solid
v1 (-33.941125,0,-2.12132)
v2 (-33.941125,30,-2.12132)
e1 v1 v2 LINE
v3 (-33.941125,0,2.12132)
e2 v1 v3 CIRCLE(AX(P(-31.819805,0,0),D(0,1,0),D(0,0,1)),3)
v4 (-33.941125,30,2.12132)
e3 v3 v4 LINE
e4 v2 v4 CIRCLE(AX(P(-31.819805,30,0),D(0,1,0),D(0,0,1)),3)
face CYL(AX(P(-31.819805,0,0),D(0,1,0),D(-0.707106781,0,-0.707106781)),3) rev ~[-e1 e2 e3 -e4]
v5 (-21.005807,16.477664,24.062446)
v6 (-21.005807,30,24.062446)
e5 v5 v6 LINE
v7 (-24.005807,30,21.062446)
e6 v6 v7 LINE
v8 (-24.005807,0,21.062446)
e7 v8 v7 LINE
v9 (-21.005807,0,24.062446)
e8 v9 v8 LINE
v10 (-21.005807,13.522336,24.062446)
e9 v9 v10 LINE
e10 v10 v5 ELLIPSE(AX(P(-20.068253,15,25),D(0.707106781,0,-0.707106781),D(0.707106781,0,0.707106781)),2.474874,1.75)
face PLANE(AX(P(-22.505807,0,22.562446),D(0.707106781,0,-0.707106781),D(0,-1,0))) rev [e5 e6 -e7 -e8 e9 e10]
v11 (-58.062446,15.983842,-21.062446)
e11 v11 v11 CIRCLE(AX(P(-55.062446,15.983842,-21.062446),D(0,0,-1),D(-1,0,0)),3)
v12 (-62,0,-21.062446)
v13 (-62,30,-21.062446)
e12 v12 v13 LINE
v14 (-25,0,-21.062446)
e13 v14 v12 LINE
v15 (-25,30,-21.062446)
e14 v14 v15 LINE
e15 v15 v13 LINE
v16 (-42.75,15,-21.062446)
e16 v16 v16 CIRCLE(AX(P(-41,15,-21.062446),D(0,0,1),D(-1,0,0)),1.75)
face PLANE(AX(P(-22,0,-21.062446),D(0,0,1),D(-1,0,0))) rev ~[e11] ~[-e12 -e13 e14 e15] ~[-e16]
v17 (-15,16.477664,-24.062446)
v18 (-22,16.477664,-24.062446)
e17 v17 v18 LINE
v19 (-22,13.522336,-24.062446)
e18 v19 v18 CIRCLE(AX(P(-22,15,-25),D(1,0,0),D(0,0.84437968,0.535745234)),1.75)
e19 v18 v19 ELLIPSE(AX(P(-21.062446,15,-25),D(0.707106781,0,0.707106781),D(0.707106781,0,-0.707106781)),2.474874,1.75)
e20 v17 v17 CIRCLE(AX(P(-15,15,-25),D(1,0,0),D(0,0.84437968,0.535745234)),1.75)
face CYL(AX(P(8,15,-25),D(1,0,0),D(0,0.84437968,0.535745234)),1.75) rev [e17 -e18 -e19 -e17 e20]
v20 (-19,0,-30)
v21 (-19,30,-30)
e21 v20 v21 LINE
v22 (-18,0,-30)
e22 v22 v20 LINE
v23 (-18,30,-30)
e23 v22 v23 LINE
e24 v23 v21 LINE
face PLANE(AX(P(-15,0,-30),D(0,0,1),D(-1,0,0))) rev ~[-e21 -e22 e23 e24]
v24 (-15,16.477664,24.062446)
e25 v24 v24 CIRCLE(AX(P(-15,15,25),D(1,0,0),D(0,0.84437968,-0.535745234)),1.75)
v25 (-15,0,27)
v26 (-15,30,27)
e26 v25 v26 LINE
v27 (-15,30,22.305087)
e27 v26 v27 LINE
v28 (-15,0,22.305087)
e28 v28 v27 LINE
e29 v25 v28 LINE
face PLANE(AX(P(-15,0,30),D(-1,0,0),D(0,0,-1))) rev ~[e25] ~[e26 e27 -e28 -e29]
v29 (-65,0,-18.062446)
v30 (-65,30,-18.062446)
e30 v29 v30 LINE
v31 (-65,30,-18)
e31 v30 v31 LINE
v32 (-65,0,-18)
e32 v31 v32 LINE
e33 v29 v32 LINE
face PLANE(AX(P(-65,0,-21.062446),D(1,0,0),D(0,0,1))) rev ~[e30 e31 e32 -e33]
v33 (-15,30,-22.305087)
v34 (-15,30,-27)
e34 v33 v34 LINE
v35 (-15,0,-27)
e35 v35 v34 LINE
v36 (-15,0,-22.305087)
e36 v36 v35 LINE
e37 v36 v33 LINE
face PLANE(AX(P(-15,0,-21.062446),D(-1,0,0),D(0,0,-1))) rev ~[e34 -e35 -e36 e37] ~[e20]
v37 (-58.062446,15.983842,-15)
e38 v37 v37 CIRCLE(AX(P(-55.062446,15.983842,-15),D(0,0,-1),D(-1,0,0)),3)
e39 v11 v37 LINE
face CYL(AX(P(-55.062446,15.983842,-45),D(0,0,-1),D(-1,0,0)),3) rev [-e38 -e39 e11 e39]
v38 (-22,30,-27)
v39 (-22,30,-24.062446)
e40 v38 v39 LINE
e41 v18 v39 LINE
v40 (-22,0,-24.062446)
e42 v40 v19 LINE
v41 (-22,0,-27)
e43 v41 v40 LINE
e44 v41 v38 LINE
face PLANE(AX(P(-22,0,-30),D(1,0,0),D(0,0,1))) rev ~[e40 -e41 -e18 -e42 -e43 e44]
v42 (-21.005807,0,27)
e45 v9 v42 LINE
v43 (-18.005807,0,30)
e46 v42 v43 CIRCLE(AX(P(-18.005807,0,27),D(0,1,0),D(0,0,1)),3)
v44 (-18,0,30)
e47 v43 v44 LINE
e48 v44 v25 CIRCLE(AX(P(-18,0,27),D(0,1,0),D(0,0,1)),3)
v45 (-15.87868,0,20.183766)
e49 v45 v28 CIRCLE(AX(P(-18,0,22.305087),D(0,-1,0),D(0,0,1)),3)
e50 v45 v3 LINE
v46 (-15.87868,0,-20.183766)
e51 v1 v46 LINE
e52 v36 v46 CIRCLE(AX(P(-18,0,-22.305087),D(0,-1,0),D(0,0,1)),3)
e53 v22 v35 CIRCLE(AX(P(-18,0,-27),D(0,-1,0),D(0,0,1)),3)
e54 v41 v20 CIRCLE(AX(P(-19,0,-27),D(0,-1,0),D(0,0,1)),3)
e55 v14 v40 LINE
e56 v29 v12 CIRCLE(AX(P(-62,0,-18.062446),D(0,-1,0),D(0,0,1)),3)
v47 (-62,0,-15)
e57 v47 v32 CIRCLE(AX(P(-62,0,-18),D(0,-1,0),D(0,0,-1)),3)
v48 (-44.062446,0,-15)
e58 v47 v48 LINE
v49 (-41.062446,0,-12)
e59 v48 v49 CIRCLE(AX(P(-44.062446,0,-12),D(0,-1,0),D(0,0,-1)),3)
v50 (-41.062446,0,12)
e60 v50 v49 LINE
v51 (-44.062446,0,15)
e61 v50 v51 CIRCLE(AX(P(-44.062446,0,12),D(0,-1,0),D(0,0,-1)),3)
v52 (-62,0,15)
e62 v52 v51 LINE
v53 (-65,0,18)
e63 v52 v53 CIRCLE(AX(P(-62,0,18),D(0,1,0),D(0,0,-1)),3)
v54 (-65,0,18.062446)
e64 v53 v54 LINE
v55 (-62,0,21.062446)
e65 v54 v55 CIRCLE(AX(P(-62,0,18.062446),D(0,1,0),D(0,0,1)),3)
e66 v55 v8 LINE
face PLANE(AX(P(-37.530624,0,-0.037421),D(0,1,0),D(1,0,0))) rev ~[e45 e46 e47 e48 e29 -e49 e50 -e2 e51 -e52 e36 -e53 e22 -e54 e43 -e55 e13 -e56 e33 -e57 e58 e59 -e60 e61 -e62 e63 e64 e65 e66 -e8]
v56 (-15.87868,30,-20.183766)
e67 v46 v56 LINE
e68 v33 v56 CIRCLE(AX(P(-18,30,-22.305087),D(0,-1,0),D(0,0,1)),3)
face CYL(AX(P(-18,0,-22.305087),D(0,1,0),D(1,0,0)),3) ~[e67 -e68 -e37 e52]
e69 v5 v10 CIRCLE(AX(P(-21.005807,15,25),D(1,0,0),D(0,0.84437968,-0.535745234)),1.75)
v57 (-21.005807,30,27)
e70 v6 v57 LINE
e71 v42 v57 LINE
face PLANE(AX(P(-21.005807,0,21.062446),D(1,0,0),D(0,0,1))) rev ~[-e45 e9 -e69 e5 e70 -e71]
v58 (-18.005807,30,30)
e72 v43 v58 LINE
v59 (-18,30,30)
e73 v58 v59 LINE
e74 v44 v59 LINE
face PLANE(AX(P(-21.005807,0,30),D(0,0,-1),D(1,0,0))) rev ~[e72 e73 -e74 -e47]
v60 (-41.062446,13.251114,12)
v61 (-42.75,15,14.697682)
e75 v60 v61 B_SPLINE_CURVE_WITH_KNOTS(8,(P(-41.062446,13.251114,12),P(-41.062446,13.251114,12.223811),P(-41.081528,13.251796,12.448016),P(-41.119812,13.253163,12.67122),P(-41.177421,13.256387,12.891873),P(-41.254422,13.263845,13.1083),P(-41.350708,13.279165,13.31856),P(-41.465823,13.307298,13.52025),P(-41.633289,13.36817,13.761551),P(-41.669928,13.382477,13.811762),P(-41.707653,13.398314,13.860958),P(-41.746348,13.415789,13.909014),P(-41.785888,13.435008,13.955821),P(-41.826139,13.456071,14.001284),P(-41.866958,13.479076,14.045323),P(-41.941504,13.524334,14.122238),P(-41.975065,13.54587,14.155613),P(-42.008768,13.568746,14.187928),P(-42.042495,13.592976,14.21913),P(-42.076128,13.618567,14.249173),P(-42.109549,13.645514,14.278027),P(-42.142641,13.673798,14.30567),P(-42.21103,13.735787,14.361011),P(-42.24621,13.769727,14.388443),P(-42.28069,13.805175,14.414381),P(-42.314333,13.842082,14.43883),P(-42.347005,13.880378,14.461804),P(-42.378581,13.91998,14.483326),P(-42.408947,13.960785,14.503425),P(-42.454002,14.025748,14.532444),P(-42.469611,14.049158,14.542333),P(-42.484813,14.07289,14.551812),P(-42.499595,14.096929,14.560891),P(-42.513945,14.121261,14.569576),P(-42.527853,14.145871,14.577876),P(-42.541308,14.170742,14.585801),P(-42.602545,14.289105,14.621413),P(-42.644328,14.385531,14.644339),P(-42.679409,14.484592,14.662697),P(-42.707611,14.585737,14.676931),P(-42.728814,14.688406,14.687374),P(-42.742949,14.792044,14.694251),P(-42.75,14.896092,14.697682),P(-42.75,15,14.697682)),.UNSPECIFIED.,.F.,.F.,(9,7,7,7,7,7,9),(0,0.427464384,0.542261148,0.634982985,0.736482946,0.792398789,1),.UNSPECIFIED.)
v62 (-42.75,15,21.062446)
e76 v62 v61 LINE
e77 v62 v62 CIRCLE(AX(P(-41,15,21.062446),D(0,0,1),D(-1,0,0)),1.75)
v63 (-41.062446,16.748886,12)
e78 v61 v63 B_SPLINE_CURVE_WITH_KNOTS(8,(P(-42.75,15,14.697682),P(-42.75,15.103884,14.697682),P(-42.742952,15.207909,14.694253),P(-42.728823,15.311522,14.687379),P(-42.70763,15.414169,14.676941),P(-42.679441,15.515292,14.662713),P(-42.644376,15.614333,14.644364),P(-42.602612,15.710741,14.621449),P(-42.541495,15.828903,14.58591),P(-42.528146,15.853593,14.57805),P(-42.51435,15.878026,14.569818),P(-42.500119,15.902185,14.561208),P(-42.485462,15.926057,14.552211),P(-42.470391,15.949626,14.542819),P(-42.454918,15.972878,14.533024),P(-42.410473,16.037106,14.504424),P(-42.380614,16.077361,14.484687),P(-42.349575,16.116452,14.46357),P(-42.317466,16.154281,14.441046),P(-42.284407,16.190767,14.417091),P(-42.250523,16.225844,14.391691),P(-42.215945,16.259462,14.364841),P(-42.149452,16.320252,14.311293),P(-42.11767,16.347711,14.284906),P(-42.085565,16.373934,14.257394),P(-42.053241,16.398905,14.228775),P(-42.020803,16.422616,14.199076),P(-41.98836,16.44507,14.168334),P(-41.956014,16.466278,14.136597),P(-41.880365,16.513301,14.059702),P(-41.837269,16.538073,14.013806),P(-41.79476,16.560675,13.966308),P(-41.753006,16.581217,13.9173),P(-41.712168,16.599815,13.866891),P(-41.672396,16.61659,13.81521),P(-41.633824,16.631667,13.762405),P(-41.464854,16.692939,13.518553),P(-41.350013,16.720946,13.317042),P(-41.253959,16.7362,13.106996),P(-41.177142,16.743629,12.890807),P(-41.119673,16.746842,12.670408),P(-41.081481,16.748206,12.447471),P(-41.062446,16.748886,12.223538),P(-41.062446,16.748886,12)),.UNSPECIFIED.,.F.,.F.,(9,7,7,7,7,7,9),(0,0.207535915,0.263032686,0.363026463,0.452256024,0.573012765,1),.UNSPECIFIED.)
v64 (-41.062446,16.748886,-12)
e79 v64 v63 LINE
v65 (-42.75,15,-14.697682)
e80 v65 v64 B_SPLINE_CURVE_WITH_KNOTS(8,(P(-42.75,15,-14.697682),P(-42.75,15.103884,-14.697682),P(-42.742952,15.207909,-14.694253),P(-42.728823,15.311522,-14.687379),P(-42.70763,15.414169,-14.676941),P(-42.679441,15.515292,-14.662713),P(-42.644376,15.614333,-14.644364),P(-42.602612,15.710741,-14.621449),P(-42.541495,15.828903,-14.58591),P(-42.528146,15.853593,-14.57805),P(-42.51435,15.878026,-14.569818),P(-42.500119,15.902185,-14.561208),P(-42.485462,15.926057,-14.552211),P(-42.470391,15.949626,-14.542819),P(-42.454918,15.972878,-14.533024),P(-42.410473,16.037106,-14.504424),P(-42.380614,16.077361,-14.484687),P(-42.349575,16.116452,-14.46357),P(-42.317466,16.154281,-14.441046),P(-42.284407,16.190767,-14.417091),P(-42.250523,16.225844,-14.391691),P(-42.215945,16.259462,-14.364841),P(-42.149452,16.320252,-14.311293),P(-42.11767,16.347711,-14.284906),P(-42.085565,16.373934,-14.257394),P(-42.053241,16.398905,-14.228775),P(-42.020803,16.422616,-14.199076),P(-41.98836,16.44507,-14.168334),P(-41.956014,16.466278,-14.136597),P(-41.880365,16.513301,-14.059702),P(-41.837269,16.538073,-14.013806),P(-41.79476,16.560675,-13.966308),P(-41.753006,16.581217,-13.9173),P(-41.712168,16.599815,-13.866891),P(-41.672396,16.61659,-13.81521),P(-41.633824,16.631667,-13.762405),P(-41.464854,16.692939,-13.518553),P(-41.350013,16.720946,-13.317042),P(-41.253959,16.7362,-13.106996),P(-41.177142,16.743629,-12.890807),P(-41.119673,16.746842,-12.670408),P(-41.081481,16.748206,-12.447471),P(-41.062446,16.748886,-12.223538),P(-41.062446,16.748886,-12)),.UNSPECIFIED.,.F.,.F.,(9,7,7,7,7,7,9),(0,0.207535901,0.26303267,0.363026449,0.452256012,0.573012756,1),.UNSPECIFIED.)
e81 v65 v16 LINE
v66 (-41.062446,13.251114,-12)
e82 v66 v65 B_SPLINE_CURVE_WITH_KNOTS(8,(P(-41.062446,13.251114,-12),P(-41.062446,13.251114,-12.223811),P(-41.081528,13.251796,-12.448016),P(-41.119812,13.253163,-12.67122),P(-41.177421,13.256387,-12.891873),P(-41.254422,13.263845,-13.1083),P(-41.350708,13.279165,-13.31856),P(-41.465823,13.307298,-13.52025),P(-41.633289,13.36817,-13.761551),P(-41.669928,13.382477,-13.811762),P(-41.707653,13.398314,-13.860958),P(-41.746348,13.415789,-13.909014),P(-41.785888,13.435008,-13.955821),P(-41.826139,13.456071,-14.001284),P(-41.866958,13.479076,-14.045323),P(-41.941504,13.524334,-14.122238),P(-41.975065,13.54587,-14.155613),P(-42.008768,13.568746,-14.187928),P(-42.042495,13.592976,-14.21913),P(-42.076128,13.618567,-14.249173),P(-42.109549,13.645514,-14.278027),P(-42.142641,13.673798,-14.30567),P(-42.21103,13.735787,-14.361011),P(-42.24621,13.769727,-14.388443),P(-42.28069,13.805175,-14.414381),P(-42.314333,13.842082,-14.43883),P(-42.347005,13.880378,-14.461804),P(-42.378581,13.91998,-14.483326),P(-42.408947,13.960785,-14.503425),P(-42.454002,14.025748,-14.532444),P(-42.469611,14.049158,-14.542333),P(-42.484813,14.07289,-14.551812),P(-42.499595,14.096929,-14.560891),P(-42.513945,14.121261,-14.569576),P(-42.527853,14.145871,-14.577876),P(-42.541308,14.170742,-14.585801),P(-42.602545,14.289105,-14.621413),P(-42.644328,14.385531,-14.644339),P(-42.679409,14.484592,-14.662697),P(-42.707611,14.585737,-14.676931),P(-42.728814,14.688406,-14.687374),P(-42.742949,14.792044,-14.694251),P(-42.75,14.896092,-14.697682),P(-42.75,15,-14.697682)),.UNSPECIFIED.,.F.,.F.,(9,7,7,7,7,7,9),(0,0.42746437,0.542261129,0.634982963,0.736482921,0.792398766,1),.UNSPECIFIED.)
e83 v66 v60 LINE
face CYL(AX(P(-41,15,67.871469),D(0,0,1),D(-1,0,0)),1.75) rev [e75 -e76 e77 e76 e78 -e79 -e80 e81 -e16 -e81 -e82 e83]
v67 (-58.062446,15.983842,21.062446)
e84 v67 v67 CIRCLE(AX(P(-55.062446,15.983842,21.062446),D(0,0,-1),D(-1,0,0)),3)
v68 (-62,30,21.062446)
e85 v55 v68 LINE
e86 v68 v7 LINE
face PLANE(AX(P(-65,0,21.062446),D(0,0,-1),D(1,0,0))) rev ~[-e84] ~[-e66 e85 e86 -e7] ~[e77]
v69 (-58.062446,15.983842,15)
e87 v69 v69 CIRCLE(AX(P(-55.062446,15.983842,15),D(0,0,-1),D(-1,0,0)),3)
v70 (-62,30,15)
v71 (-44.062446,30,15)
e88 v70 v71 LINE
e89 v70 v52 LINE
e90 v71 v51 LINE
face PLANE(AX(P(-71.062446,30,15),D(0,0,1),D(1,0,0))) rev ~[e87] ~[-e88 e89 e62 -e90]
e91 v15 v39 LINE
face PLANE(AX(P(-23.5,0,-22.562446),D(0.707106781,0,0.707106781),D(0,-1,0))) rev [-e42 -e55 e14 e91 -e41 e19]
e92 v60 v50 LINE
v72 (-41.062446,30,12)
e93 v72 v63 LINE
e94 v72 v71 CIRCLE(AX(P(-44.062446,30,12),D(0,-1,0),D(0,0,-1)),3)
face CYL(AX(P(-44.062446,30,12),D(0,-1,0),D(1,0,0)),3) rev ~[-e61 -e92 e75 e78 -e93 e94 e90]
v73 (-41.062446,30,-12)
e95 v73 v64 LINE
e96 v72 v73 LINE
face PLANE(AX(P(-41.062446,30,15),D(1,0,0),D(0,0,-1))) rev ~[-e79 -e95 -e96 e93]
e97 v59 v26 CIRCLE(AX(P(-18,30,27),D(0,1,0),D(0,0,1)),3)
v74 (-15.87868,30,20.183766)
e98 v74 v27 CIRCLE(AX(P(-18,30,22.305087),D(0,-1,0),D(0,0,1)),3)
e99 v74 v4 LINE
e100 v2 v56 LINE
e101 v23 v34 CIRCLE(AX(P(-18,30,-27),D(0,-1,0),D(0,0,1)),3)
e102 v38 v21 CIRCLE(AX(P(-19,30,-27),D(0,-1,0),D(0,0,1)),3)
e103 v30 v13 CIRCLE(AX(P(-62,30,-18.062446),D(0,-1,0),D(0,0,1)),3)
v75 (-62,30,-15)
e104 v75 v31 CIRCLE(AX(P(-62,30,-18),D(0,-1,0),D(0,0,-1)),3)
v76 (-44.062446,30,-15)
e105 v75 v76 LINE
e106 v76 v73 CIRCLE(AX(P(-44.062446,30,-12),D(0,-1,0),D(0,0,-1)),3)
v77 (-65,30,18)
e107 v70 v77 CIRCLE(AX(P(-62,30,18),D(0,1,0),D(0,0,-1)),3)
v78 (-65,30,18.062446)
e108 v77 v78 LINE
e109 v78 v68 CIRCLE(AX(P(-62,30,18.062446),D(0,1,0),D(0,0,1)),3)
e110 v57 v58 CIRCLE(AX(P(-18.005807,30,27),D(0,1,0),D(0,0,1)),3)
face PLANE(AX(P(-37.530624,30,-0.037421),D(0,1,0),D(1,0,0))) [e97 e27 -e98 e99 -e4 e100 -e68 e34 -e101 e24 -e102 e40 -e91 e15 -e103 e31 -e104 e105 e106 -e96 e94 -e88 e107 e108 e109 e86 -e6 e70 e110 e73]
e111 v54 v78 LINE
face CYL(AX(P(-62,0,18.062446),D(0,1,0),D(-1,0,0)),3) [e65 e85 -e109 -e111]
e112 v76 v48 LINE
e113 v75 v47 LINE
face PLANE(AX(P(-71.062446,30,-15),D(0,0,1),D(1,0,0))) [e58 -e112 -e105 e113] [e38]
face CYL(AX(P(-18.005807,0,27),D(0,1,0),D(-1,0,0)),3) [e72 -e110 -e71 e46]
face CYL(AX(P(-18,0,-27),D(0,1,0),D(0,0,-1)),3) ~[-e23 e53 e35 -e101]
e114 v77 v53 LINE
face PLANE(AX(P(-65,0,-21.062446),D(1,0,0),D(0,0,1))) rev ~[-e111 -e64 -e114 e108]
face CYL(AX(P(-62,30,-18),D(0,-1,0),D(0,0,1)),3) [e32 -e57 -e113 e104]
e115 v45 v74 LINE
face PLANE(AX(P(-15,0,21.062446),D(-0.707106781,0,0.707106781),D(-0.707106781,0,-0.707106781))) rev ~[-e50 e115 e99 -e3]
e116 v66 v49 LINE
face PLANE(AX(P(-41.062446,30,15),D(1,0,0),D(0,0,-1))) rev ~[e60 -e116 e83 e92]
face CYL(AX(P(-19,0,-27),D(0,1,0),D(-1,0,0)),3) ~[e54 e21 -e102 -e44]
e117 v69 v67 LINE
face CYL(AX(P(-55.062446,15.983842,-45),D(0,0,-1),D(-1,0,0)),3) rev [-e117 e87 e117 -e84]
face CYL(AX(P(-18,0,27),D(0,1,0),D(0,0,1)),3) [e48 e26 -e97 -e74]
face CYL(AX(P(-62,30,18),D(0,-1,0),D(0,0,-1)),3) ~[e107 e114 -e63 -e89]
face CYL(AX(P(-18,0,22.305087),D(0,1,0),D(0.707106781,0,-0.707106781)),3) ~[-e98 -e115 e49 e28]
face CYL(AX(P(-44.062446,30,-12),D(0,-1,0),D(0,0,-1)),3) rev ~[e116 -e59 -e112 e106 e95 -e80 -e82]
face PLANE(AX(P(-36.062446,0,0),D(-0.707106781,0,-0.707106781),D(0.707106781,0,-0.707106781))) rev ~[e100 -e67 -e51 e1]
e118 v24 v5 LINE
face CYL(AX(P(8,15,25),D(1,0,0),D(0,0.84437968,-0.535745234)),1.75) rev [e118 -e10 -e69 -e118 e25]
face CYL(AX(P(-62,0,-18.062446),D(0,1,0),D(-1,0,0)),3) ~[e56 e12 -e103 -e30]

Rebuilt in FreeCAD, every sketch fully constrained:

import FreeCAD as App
import Part
import Sketcher
Q = App.Units.Quantity


def edges_at(feature, points):
    """Names of the edges that pass closest to the given points."""
    edges = feature.Shape.Edges
    near = lambda p: min(range(len(edges)), key=lambda i: edges[i].distToShape(Part.Vertex(*p))[0])
    return sorted({f"Edge{near(p) + 1}" for p in points})

doc = App.newDocument("Part")
body = doc.addObject("PartDesign::Body", "Body")

# Sketch on XZ plane
sketch1 = body.newObject("Sketcher::SketchObject", "Sketch")
sketch1.AttachmentSupport = (doc.getObject("XZ_Plane"), [""])
sketch1.MapMode = "FlatFace"
sketch1.addGeometry([
    Part.LineSegment(App.Vector(-65, -21.062446, 0), App.Vector(-65, 21.062446, 0)),  # 0
    Part.LineSegment(App.Vector(-65, 21.062446, 0), App.Vector(-21.005807, 21.062446, 0)),  # 1
    Part.LineSegment(App.Vector(-21.005807, 21.062446, 0), App.Vector(-21.005807, 30, 0)),  # 2
    Part.LineSegment(App.Vector(-21.005807, 30, 0), App.Vector(-15, 30, 0)),  # 3
    Part.LineSegment(App.Vector(-15, 30, 0), App.Vector(-15, 21.062446, 0)),  # 4
    Part.LineSegment(App.Vector(-15, 21.062446, 0), App.Vector(-36.062446, 0, 0)),  # 5
    Part.LineSegment(App.Vector(-36.062446, 0, 0), App.Vector(-15, -21.062446, 0)),  # 6
    Part.LineSegment(App.Vector(-15, -21.062446, 0), App.Vector(-15, -30, 0)),  # 7
    Part.LineSegment(App.Vector(-15, -30, 0), App.Vector(-22, -30, 0)),  # 8
    Part.LineSegment(App.Vector(-22, -30, 0), App.Vector(-22, -21.062446, 0)),  # 9
    Part.LineSegment(App.Vector(-22, -21.062446, 0), App.Vector(-65, -21.062446, 0)),  # 10
], False)
sketch1.addConstraint([
    Sketcher.Constraint("Coincident", 0, 2, 1, 1),
    Sketcher.Constraint("Coincident", 1, 2, 2, 1),
    Sketcher.Constraint("Coincident", 2, 2, 3, 1),
    Sketcher.Constraint("Coincident", 3, 2, 4, 1),
    Sketcher.Constraint("Coincident", 4, 2, 5, 1),
    Sketcher.Constraint("Coincident", 5, 2, 6, 1),
    Sketcher.Constraint("Coincident", 6, 2, 7, 1),
    Sketcher.Constraint("Coincident", 7, 2, 8, 1),
    Sketcher.Constraint("Coincident", 8, 2, 9, 1),
    Sketcher.Constraint("Coincident", 9, 2, 10, 1),
    Sketcher.Constraint("Coincident", 10, 2, 0, 1),
    Sketcher.Constraint("Vertical", 0),
    Sketcher.Constraint("Horizontal", 1),
    Sketcher.Constraint("Vertical", 2),
    Sketcher.Constraint("Horizontal", 3),
    Sketcher.Constraint("Vertical", 4),
    Sketcher.Constraint("Vertical", 7),
    Sketcher.Constraint("Horizontal", 8),
    Sketcher.Constraint("Vertical", 9),
    Sketcher.Constraint("Horizontal", 10),
    Sketcher.Constraint("Symmetric", 4, 2, 6, 2, -1),
    Sketcher.Constraint("PointOnObject", 5, 2, -1),
    Sketcher.Constraint("Perpendicular", 5, 6),
    Sketcher.Constraint("Horizontal", 1, 2, 4, 2),
    Sketcher.Constraint("Horizontal", 6, 2, 9, 2),
    Sketcher.Constraint("Equal", 4, 7),
    Sketcher.Constraint("DistanceX", 8, 2, 8, 1, Q("7 mm")),
    Sketcher.Constraint("DistanceX", 10, 2, 10, 1, Q("43 mm")),
    Sketcher.Constraint("DistanceX", 0, 2, -1, 1, Q("65 mm")),
    Sketcher.Constraint("DistanceY", -1, 1, 2, 2, Q("30 mm")),
    Sketcher.Constraint("DistanceY", 0, 1, 0, 2, Q("42.124892 mm")),
    Sketcher.Constraint("DistanceX", 1, 1, 1, 2, Q("43.994193 mm")),
])
pad1 = body.newObject("PartDesign::Pad", "Pad")
pad1.Profile = sketch1
pad1.Length = 30
pad1.Reversed = True

# Sketch on XZ plane
sketch2 = body.newObject("Sketcher::SketchObject", "Sketch001")
sketch2.AttachmentSupport = (doc.getObject("XZ_Plane"), [""])
sketch2.MapMode = "FlatFace"
sketch2.AttachmentOffset = App.Placement(App.Vector(0, 0, -30), App.Rotation())
sketch2.addGeometry([
    Part.LineSegment(App.Vector(-71.062446, -15, 0), App.Vector(-71.062446, 15, 0)),
    Part.LineSegment(App.Vector(-71.062446, 15, 0), App.Vector(-41.062446, 15, 0)),
    Part.LineSegment(App.Vector(-41.062446, 15, 0), App.Vector(-41.062446, -15, 0)),
    Part.LineSegment(App.Vector(-41.062446, -15, 0), App.Vector(-71.062446, -15, 0)),
], False)
sketch2.addConstraint([
    Sketcher.Constraint("Coincident", 0, 2, 1, 1),
    Sketcher.Constraint("Coincident", 1, 2, 2, 1),
    Sketcher.Constraint("Coincident", 2, 2, 3, 1),
    Sketcher.Constraint("Coincident", 3, 2, 0, 1),
    Sketcher.Constraint("Vertical", 0),
    Sketcher.Constraint("Horizontal", 1),
    Sketcher.Constraint("Vertical", 2),
    Sketcher.Constraint("Horizontal", 3),
    Sketcher.Constraint("Equal", 3, 0),
    Sketcher.Constraint("DistanceX", 1, 1, 1, 2, Q("30 mm")),
    Sketcher.Constraint("DistanceY", -1, 1, 0, 2, Q("15 mm")),
    Sketcher.Constraint("DistanceX", 0, 2, -1, 1, Q("71.062446 mm")),
])
pocket1 = body.newObject("PartDesign::Pocket", "Pocket")
pocket1.Profile = sketch2
pocket1.Length = 30
pocket1.Reversed = True
doc.recompute()

chamfer = body.newObject("PartDesign::Chamfer", "Chamfer")
chamfer.Base = (pocket1, edges_at(pocket1, [(-21.006, 15, 21.062), (-22, 15, -21.062)]))
chamfer.Size = 3
doc.recompute()

fillet = body.newObject("PartDesign::Fillet", "Fillet")
fillet.Base = (chamfer, edges_at(chamfer, [
    (-36.062, 15, 0),
    (-15, 15, 21.062),
    (-15, 15, -21.062),
    (-41.062, 15, 15),
    (-41.062, 15, -15),
]))
fillet.Radius = 3
doc.recompute()

fillet2 = body.newObject("PartDesign::Fillet", "Fillet001")
fillet2.Base = (fillet, edges_at(fillet, [
    (-15, 15, 30),
    (-21.006, 15, 30),
    (-65, 15, 21.062),
    (-65, 15, -21.062),
    (-22, 15, -30),
    (-15, 15, -30),
    (-65, 15, 15),
    (-65, 15, -15),
]))
fillet2.Radius = 3

# Sketch on YZ plane
sketch3 = body.newObject("Sketcher::SketchObject", "Sketch002")
sketch3.AttachmentSupport = (doc.getObject("YZ_Plane"), [""])
sketch3.MapMode = "FlatFace"
sketch3.AttachmentOffset = App.Placement(App.Vector(0, 0, -22), App.Rotation())
sketch3.addGeometry([
    Part.Circle(App.Vector(15, -25, 0), App.Vector(0, 0, 1), 1.75),
    Part.Circle(App.Vector(15, 25, 0), App.Vector(0, 0, 1), 1.75),
], False)
sketch3.addConstraint([
    Sketcher.Constraint("Equal", 0, 1),
    Sketcher.Constraint("Symmetric", 0, 3, 1, 3, -1),
    Sketcher.Constraint("Diameter", 0, Q("3.5 mm")),
    Sketcher.Constraint("DistanceX", -1, 1, 0, 3, Q("15 mm")),
    Sketcher.Constraint("DistanceY", 0, 3, -1, 1, Q("25 mm")),
])
pocket2 = body.newObject("PartDesign::Pocket", "Pocket001")
pocket2.Profile = sketch3
pocket2.Type = "ThroughAll"
pocket2.Midplane = True

# Sketch on XY plane
sketch4 = body.newObject("Sketcher::SketchObject", "Sketch003")
sketch4.AttachmentSupport = (doc.getObject("XY_Plane"), [""])
sketch4.MapMode = "FlatFace"
sketch4.AttachmentOffset = App.Placement(App.Vector(0, 0, -15), App.Rotation())
sketch4.addGeometry(Part.Circle(App.Vector(-55.062446, 15.983842, 0), App.Vector(0, 0, 1), 3), False)
sketch4.addConstraint([
    Sketcher.Constraint("Diameter", 0, Q("6 mm")),
    Sketcher.Constraint("DistanceY", -1, 1, 0, 3, Q("15.983842 mm")),
    Sketcher.Constraint("DistanceX", 0, 3, -1, 1, Q("55.062446 mm")),
])
pocket3 = body.newObject("PartDesign::Pocket", "Pocket002")
pocket3.Profile = sketch4
pocket3.Type = "ThroughAll"
pocket3.Midplane = True

# Sketch on XY plane
sketch5 = body.newObject("Sketcher::SketchObject", "Sketch004")
sketch5.AttachmentSupport = (doc.getObject("XY_Plane"), [""])
sketch5.MapMode = "FlatFace"
sketch5.AttachmentOffset = App.Placement(App.Vector(0, 0, -21.062446), App.Rotation())
sketch5.addGeometry(Part.Circle(App.Vector(-41, 15, 0), App.Vector(0, 0, 1), 1.75), False)
sketch5.addConstraint([
    Sketcher.Constraint("Diameter", 0, Q("3.5 mm")),
    Sketcher.Constraint("DistanceX", 0, 3, -1, 1, Q("41 mm")),
    Sketcher.Constraint("DistanceY", -1, 1, 0, 3, Q("15 mm")),
])
pocket4 = body.newObject("PartDesign::Pocket", "Pocket003")
pocket4.Profile = sketch5
pocket4.Type = "ThroughAll"
pocket4.Midplane = True

doc.recompute()
